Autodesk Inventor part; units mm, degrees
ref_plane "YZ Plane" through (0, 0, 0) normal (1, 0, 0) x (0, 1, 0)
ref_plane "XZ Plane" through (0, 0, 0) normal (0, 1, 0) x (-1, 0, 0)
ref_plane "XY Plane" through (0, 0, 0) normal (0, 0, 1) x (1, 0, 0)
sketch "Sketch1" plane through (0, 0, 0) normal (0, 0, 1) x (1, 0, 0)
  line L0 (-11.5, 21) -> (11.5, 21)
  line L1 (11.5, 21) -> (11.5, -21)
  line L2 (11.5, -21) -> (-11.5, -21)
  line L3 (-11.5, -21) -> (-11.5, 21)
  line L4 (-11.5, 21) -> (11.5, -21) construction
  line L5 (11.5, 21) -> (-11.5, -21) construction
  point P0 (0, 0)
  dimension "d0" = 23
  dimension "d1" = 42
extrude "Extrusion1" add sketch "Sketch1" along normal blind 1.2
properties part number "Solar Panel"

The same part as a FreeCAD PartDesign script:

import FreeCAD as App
import Part
import Sketcher
from FreeCAD import Vector
Q = App.Units.Quantity

doc = App.newDocument("Part")
body = doc.addObject("PartDesign::Body", "Body")

# Sketch on XY plane
sketch1 = body.newObject("Sketcher::SketchObject", "Sketch")
sketch1.AttachmentSupport = (doc.getObject("XY_Plane"), [""])
sketch1.MapMode = "FlatFace"
sketch1.addGeometry([
    Part.LineSegment(Vector(12, 21, 0), Vector(-12, 21, 0)),
    Part.LineSegment(Vector(-12, 21, 0), Vector(-12, -21, 0)),
    Part.LineSegment(Vector(-12, -21, 0), Vector(12, -21, 0)),
    Part.LineSegment(Vector(12, -21, 0), Vector(12, 21, 0)),
], False)
sketch1.addConstraint([
    Sketcher.Constraint("Coincident", 0, 2, 1, 1),
    Sketcher.Constraint("Coincident", 1, 2, 2, 1),
    Sketcher.Constraint("Coincident", 2, 2, 3, 1),
    Sketcher.Constraint("Coincident", 3, 2, 0, 1),
    Sketcher.Constraint("Horizontal", 0),
    Sketcher.Constraint("Vertical", 1),
    Sketcher.Constraint("Horizontal", 2),
    Sketcher.Constraint("Vertical", 3),
    Sketcher.Constraint("Symmetric", 0, 2, 2, 2, -1, 1),
    Sketcher.Constraint("DistanceX", 0, 2, 0, 1, Q("23 mm")),
    Sketcher.Constraint("DistanceY", 1, 2, 1, 1, Q("42 mm")),
])
pad1 = body.newObject("PartDesign::Pad", "Pad")
pad1.Profile = sketch1
pad1.Length = 1.2

doc.recompute()
